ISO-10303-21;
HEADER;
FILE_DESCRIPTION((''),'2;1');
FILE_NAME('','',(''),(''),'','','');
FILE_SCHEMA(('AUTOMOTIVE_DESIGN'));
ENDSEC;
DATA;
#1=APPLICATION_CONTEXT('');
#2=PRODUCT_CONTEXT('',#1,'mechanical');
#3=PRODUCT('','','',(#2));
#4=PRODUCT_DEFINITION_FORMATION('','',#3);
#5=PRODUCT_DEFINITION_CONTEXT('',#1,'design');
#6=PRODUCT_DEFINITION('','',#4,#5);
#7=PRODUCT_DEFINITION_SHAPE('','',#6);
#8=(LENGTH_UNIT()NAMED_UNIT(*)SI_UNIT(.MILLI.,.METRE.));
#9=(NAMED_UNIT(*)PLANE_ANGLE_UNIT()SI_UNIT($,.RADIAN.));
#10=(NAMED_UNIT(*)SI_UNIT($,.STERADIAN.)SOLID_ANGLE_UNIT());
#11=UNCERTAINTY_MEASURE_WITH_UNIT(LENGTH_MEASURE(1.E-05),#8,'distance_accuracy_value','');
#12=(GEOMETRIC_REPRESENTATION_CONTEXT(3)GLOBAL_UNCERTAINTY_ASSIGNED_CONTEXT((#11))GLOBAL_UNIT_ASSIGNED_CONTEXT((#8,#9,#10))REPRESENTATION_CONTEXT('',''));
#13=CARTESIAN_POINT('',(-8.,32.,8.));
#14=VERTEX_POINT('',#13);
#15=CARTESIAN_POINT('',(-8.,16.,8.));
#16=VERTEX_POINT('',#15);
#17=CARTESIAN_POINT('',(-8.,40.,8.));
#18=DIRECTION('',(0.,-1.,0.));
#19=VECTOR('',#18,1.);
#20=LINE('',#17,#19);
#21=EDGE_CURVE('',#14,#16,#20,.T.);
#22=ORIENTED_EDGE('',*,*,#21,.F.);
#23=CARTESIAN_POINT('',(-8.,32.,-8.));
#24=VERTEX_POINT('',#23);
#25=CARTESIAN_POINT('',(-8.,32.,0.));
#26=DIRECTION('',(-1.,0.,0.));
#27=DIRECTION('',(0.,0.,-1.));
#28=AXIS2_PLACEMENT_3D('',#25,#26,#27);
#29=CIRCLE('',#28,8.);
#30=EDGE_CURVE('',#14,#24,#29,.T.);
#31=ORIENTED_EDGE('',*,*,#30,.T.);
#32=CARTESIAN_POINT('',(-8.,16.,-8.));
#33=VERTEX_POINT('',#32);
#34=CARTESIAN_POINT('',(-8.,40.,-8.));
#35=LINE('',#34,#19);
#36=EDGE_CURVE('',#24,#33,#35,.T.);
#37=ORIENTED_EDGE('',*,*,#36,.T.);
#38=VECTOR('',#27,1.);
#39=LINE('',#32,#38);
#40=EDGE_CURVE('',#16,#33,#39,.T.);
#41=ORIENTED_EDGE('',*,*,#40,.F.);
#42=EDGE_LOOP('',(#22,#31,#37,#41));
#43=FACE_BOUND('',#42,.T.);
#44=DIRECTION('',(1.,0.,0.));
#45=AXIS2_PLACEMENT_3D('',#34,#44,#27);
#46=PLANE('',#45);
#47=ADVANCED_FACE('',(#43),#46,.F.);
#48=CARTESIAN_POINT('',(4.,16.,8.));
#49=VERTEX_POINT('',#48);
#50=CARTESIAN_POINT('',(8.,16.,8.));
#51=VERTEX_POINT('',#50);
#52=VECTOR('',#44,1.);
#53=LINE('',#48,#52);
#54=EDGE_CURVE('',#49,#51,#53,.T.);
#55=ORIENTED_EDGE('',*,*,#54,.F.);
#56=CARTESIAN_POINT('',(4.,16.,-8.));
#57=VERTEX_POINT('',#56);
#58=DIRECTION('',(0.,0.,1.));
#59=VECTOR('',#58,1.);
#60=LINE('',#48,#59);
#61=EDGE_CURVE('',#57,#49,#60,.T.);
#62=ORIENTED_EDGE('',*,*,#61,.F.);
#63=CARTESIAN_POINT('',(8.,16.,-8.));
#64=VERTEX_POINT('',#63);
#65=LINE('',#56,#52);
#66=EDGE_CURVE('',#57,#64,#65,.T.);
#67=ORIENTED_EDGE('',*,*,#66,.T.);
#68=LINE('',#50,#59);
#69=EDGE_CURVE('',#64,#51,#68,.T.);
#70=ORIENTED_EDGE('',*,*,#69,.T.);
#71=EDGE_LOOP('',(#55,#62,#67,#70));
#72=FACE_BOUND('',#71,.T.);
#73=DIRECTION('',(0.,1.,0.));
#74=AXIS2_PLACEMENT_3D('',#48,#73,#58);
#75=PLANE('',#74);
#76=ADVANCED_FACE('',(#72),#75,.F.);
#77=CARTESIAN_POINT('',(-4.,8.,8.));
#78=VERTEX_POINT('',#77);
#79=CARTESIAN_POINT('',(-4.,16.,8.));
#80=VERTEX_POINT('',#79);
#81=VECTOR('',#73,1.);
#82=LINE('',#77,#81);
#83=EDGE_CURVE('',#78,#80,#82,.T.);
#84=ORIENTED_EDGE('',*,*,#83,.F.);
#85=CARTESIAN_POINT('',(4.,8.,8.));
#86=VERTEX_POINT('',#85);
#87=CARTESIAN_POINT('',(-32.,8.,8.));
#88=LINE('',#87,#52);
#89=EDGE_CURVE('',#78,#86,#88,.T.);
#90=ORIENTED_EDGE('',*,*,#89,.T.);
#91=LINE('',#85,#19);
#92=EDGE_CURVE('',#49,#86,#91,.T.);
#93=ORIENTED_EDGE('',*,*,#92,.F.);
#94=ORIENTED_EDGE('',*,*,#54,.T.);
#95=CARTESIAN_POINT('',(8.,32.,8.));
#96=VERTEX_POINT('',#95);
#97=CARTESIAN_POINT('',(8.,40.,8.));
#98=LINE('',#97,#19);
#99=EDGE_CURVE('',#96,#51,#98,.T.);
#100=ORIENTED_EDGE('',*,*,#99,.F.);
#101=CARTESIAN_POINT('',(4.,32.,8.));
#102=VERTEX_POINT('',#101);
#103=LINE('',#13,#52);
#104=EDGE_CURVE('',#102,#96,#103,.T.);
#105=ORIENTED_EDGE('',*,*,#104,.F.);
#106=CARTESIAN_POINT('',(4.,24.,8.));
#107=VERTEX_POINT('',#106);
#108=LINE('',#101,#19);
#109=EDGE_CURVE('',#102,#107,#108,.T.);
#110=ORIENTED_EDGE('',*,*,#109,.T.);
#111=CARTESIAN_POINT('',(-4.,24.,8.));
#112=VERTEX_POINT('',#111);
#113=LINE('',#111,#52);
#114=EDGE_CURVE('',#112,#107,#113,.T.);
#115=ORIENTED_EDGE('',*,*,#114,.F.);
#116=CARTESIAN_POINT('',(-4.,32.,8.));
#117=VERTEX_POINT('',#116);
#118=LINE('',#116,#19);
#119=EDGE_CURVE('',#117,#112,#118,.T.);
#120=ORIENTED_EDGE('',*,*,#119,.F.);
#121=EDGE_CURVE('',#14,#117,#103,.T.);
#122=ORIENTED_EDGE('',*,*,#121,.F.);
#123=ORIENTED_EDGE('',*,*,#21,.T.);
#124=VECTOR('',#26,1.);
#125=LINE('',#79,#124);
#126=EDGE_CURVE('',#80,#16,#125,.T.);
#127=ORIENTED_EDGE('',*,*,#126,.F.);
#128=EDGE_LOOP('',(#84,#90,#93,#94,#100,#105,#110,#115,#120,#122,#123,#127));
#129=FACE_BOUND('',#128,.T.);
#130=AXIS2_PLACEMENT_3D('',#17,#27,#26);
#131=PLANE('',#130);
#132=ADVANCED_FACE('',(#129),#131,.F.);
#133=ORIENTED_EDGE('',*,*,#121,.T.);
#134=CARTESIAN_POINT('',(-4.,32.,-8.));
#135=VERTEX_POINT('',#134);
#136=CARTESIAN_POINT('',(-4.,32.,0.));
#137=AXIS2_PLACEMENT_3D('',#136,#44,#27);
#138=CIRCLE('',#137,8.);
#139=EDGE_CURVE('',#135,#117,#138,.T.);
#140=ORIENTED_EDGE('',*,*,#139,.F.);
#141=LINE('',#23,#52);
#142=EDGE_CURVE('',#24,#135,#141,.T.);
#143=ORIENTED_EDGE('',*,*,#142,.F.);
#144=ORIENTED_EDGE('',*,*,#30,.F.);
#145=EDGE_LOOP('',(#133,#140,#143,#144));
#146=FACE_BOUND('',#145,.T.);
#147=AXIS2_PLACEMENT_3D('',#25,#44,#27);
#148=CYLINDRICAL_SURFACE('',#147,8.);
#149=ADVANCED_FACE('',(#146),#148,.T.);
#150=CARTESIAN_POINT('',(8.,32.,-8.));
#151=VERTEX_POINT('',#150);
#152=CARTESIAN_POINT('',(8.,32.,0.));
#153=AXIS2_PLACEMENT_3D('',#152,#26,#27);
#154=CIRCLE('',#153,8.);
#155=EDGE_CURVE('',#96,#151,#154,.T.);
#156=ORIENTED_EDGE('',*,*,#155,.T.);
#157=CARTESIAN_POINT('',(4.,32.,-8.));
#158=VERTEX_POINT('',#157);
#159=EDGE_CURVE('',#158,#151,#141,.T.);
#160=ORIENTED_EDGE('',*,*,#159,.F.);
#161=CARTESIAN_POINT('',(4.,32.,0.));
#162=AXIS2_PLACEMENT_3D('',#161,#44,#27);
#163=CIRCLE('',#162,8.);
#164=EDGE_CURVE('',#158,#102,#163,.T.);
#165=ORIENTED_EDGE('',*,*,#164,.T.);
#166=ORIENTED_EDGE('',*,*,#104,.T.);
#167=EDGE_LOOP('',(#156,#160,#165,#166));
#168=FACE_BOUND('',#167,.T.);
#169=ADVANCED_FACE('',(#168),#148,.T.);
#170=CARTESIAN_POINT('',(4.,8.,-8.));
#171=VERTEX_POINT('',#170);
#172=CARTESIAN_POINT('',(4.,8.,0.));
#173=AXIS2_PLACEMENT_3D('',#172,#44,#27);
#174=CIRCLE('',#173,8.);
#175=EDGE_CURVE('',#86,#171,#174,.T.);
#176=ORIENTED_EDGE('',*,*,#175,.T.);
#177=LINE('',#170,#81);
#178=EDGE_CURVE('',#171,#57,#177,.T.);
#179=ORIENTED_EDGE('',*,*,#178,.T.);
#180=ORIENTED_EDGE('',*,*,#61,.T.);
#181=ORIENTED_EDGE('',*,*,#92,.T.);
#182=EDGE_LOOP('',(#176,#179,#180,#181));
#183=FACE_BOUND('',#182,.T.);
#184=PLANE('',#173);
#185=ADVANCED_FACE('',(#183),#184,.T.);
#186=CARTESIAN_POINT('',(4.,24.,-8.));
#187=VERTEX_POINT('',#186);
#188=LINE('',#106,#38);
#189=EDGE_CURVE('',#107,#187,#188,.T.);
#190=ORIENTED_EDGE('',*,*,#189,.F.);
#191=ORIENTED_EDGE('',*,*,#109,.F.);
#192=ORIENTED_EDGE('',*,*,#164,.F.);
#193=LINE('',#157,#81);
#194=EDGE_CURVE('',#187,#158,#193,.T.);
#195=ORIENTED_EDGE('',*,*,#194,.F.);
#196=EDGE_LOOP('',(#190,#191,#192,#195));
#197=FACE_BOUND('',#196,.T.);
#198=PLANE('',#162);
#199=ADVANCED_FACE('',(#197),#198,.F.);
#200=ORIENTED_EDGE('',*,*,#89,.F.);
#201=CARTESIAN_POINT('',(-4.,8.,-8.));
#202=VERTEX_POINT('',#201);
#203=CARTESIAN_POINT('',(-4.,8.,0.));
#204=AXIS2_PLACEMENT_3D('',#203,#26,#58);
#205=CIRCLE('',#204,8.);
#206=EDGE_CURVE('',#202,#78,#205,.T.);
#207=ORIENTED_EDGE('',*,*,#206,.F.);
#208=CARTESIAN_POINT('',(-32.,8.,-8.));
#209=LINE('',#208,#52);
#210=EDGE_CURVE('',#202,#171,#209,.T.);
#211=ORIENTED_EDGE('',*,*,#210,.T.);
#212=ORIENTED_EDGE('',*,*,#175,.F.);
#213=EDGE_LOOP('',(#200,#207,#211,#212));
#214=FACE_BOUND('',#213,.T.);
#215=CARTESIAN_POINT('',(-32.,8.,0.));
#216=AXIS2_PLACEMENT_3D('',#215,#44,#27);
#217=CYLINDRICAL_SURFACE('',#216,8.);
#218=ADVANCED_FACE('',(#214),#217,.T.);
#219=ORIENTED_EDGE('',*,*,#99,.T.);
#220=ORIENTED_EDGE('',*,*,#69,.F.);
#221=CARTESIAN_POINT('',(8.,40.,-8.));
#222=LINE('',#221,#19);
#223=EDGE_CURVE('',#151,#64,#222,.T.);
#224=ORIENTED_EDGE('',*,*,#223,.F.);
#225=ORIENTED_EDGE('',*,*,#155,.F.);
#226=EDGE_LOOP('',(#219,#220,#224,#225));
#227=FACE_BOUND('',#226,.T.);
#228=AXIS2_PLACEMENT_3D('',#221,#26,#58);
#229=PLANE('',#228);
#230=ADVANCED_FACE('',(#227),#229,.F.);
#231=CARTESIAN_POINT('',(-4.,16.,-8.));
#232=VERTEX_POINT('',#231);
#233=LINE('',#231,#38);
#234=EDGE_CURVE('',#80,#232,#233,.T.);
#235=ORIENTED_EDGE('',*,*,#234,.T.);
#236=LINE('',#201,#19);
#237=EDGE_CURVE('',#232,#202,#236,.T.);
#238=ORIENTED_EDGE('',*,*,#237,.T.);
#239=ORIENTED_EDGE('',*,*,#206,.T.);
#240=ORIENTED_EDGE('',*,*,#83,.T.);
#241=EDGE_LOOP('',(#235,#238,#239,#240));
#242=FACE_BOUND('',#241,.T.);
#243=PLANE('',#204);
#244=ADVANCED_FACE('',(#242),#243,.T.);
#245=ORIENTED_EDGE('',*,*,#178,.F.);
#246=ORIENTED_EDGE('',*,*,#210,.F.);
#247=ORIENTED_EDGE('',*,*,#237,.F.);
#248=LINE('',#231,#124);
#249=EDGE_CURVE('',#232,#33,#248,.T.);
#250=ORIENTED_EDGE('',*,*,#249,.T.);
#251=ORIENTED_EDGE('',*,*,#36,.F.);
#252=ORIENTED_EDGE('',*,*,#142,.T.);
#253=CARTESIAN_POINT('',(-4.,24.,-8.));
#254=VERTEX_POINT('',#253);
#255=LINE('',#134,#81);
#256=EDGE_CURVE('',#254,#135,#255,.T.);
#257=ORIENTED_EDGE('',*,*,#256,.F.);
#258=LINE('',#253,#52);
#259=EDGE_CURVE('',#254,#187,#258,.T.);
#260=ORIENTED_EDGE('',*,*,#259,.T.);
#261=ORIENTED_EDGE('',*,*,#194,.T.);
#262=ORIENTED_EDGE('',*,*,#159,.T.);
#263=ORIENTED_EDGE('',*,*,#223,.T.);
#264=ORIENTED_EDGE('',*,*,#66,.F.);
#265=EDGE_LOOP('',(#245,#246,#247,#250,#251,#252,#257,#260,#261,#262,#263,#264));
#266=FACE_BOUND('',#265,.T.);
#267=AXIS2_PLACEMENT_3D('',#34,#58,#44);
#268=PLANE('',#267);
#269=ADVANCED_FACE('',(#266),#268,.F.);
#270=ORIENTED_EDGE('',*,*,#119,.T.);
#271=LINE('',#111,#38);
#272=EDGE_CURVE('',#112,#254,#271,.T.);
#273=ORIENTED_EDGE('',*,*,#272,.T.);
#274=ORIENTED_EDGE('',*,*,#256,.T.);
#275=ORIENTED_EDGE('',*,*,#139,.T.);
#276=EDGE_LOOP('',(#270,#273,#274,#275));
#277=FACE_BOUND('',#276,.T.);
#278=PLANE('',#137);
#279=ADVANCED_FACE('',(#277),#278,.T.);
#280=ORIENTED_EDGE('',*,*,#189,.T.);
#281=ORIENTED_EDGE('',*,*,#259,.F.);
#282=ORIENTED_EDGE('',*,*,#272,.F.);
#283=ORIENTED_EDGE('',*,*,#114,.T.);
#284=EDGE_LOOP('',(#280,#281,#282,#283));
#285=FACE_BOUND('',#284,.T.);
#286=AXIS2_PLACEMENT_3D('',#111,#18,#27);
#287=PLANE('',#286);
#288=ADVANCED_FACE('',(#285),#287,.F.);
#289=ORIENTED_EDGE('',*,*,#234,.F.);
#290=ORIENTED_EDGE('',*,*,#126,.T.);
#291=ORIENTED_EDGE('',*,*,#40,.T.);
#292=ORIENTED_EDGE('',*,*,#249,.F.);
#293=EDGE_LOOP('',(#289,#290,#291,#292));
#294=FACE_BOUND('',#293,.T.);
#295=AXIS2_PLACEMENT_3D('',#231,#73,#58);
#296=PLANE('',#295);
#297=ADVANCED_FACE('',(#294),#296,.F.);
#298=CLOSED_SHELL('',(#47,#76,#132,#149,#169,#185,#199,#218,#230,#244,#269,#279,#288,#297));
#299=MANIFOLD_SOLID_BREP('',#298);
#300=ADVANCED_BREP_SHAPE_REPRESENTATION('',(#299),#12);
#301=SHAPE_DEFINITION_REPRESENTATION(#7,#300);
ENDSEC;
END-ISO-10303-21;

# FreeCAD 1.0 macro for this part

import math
import FreeCAD as App
import Part
import Sketcher

V = App.Vector
Q = App.Units.Quantity

doc = App.newDocument("Part")
body = doc.addObject("PartDesign::Body", "Body")

# Sketch on XZ plane
sketch1 = doc.addObject("Sketcher::SketchObject", "Sketch")
body.addObject(sketch1)
sketch1.AttachmentSupport = (doc.XZ_Plane, [""])
sketch1.MapMode = "FlatFace"
sketch1.addGeometry([
    Part.LineSegment(V(-8, -8, 0), V(-8, 8, 0)),
    Part.LineSegment(V(-8, 8, 0), V(8, 8, 0)),
    Part.LineSegment(V(8, 8, 0), V(8, -8, 0)),
    Part.LineSegment(V(8, -8, 0), V(-8, -8, 0)),
], False)
sketch1.addConstraint([
    Sketcher.Constraint("Coincident", 0, 2, 1, 1),
    Sketcher.Constraint("Coincident", 1, 2, 2, 1),
    Sketcher.Constraint("Coincident", 2, 2, 3, 1),
    Sketcher.Constraint("Coincident", 3, 2, 0, 1),
    Sketcher.Constraint("Vertical", 0),
    Sketcher.Constraint("Horizontal", 1),
    Sketcher.Constraint("Vertical", 2),
    Sketcher.Constraint("Horizontal", 3),
    Sketcher.Constraint("Symmetric", 0, 2, 2, 2, -1, 1),
    Sketcher.Constraint("Equal", 3, 0),
    Sketcher.Constraint("DistanceX", 1, 1, 1, 2, Q("16 mm")),
])
pad1 = doc.addObject("PartDesign::Pad", "Pad")
body.addObject(pad1)
pad1.Profile = sketch1
pad1.Length = 40
pad1.Reversed = True

# Sketch on YZ plane
sketch2 = doc.addObject("Sketcher::SketchObject", "Sketch001")
body.addObject(sketch2)
sketch2.AttachmentSupport = (doc.YZ_Plane, [""])
sketch2.MapMode = "FlatFace"
sketch2.AttachmentOffset = App.Placement(V(0, 0, 8), App.Rotation())
sketch2.addGeometry([
    Part.LineSegment(V(8, 8, 0), V(-6.748551, 8, 0)),
    Part.LineSegment(V(-6.748551, 8, 0), V(-6.748551, -8, 0)),
    Part.LineSegment(V(-6.748551, -8, 0), V(8, -8, 0)),
    Part.ArcOfCircle(Part.Circle(V(8, 0, 0), V(0, 0, 1), 8), math.radians(90), math.radians(270)),
], False)
sketch2.addConstraint([
    Sketcher.Constraint("Coincident", 0, 2, 1, 1),
    Sketcher.Constraint("Coincident", 1, 2, 2, 1),
    Sketcher.Constraint("Tangent", 2, 2, 3, 2),
    Sketcher.Constraint("Tangent", 3, 1, 0, 1),
    Sketcher.Constraint("Horizontal", 0),
    Sketcher.Constraint("Vertical", 1),
    Sketcher.Constraint("Horizontal", 2),
    Sketcher.Constraint("PointOnObject", 3, 3, -1),
    Sketcher.Constraint("Radius", 3, Q("8 mm")),
    Sketcher.Constraint("DistanceX", -1, 1, 3, 3, Q("8 mm")),
    Sketcher.Constraint("DistanceX", 0, 2, 0, 1, Q("14.748551 mm")),
])
pocket1 = doc.addObject("PartDesign::Pocket", "Pocket")
body.addObject(pocket1)
pocket1.Profile = sketch2
pocket1.Length = 40

# Sketch on YZ plane
sketch3 = doc.addObject("Sketcher::SketchObject", "Sketch002")
body.addObject(sketch3)
sketch3.AttachmentSupport = (doc.YZ_Plane, [""])
sketch3.MapMode = "FlatFace"
sketch3.AttachmentOffset = App.Placement(V(0, 0, -4), App.Rotation())
sketch3.addGeometry([
    Part.LineSegment(V(16, -8, 0), V(8, -8, 0)),
    Part.ArcOfCircle(Part.Circle(V(8, 0, 0), V(0, 0, 1), 8), math.radians(90), math.radians(270)),
    Part.LineSegment(V(8, 8, 0), V(16, 8, 0)),
    Part.LineSegment(V(16, 8, 0), V(16, -8, 0)),
], False)
sketch3.addConstraint([
    Sketcher.Constraint("Tangent", 0, 2, 1, 2),
    Sketcher.Constraint("Tangent", 1, 1, 2, 1),
    Sketcher.Constraint("Coincident", 2, 2, 3, 1),
    Sketcher.Constraint("Coincident", 3, 2, 0, 1),
    Sketcher.Constraint("Horizontal", 0),
    Sketcher.Constraint("Horizontal", 2),
    Sketcher.Constraint("Vertical", 3),
    Sketcher.Constraint("PointOnObject", 1, 3, -1),
    Sketcher.Constraint("Radius", 1, Q("8 mm")),
    Sketcher.Constraint("DistanceX", 0, 2, 0, 1, Q("8 mm")),
    Sketcher.Constraint("DistanceX", -1, 1, 1, 3, Q("8 mm")),
])
pocket2 = doc.addObject("PartDesign::Pocket", "Pocket001")
body.addObject(pocket2)
pocket2.Profile = sketch3
pocket2.Length = 4

# Sketch on YZ plane
sketch4 = doc.addObject("Sketcher::SketchObject", "Sketch003")
body.addObject(sketch4)
sketch4.AttachmentSupport = (doc.YZ_Plane, [""])
sketch4.MapMode = "FlatFace"
sketch4.AttachmentOffset = App.Placement(V(0, 0, 8), App.Rotation())
sketch4.addGeometry([
    Part.LineSegment(V(16, 8, 0), V(8, 8, 0)),
    Part.ArcOfCircle(Part.Circle(V(8, 0, 0), V(0, 0, 1), 8), math.radians(90), math.radians(270)),
    Part.LineSegment(V(8, -8, 0), V(16, -8, 0)),
    Part.LineSegment(V(16, -8, 0), V(16, 8, 0)),
], False)
sketch4.addConstraint([
    Sketcher.Constraint("Tangent", 0, 2, 1, 1),
    Sketcher.Constraint("Tangent", 1, 2, 2, 1),
    Sketcher.Constraint("Coincident", 2, 2, 3, 1),
    Sketcher.Constraint("Coincident", 3, 2, 0, 1),
    Sketcher.Constraint("Horizontal", 0),
    Sketcher.Constraint("Horizontal", 2),
    Sketcher.Constraint("Vertical", 3),
    Sketcher.Constraint("PointOnObject", 1, 3, -1),
    Sketcher.Constraint("Radius", 1, Q("8 mm")),
    Sketcher.Constraint("DistanceX", 0, 2, 0, 1, Q("8 mm")),
    Sketcher.Constraint("DistanceX", -1, 1, 1, 3, Q("8 mm")),
])
pocket3 = doc.addObject("PartDesign::Pocket", "Pocket002")
body.addObject(pocket3)
pocket3.Profile = sketch4
pocket3.Length = 4

# Sketch on YZ plane
sketch5 = doc.addObject("Sketcher::SketchObject", "Sketch004")
body.addObject(sketch5)
sketch5.AttachmentSupport = (doc.YZ_Plane, [""])
sketch5.MapMode = "FlatFace"
sketch5.AttachmentOffset = App.Placement(V(0, 0, 8), App.Rotation())
sketch5.addGeometry([
    Part.LineSegment(V(44.090266, 8, 0), V(32, 8, 0)),
    Part.ArcOfCircle(Part.Circle(V(32, 0, 0), V(0, 0, 1), 8), math.radians(-90), math.radians(90)),
    Part.LineSegment(V(32, -8, 0), V(44.090266, -8, 0)),
    Part.LineSegment(V(44.090266, -8, 0), V(44.090266, 8, 0)),
], False)
sketch5.addConstraint([
    Sketcher.Constraint("Tangent", 0, 2, 1, 2),
    Sketcher.Constraint("Tangent", 1, 1, 2, 1),
    Sketcher.Constraint("Coincident", 2, 2, 3, 1),
    Sketcher.Constraint("Coincident", 3, 2, 0, 1),
    Sketcher.Constraint("Horizontal", 0),
    Sketcher.Constraint("Horizontal", 2),
    Sketcher.Constraint("Vertical", 3),
    Sketcher.Constraint("PointOnObject", 1, 3, -1),
    Sketcher.Constraint("Radius", 1, Q("8 mm")),
    Sketcher.Constraint("DistanceX", -1, 1, 1, 3, Q("32 mm")),
    Sketcher.Constraint("DistanceX", 0, 2, 0, 1, Q("12.090266 mm")),
])
pocket4 = doc.addObject("PartDesign::Pocket", "Pocket003")
body.addObject(pocket4)
pocket4.Profile = sketch5
pocket4.Type = "ThroughAll"

# Sketch on YZ plane
sketch6 = doc.addObject("Sketcher::SketchObject", "Sketch005")
body.addObject(sketch6)
sketch6.AttachmentSupport = (doc.YZ_Plane, [""])
sketch6.MapMode = "FlatFace"
sketch6.addGeometry([
    Part.LineSegment(V(32, 8, 0), V(24, 8, 0)),
    Part.LineSegment(V(24, 8, 0), V(24, -8, 0)),
    Part.LineSegment(V(24, -8, 0), V(32, -8, 0)),
    Part.ArcOfCircle(Part.Circle(V(32, 0, 0), V(0, 0, 1), 8), math.radians(-90), math.radians(90)),
], False)
sketch6.addConstraint([
    Sketcher.Constraint("Coincident", 0, 2, 1, 1),
    Sketcher.Constraint("Coincident", 1, 2, 2, 1),
    Sketcher.Constraint("Tangent", 2, 2, 3, 1),
    Sketcher.Constraint("Tangent", 3, 2, 0, 1),
    Sketcher.Constraint("Horizontal", 0),
    Sketcher.Constraint("Vertical", 1),
    Sketcher.Constraint("Horizontal", 2),
    Sketcher.Constraint("PointOnObject", 3, 3, -1),
    Sketcher.Constraint("Radius", 3, Q("8 mm")),
    Sketcher.Constraint("DistanceX", 0, 2, 0, 1, Q("8 mm")),
    Sketcher.Constraint("DistanceX", -1, 1, 3, 3, Q("32 mm")),
])
pocket5 = doc.addObject("PartDesign::Pocket", "Pocket004")
body.addObject(pocket5)
pocket5.Profile = sketch6
pocket5.Length = 8
pocket5.Midplane = True

doc.recompute()
